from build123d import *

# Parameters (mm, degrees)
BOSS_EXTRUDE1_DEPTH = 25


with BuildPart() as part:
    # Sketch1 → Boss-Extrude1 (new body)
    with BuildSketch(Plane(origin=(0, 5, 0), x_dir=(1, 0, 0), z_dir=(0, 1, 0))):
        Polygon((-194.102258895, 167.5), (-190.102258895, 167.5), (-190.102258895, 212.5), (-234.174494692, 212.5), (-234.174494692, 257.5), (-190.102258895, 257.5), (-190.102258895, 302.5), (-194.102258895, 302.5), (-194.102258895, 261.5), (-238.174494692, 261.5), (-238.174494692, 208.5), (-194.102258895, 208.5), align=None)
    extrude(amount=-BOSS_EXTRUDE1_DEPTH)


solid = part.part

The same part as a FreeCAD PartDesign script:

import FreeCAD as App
import Part
import Sketcher

doc = App.newDocument("Part")
body = doc.addObject("PartDesign::Body", "Body")

# Sketch on XZ plane
sketch1 = doc.addObject("Sketcher::SketchObject", "Sketch")
body.addObject(sketch1)
sketch1.AttachmentSupport = (doc.XZ_Plane, [""])
sketch1.MapMode = "FlatFace"
sketch1.AttachmentOffset = App.Placement(App.Vector(0, 0, -5), App.Rotation())
sketch1.addGeometry([
    Part.LineSegment(App.Vector(-194.1, -167.5, 0), App.Vector(-190.1, -167.5, 0)),  # 0
    Part.LineSegment(App.Vector(-190.1, -167.5, 0), App.Vector(-190.1, -212.5, 0)),  # 1
    Part.LineSegment(App.Vector(-190.1, -212.5, 0), App.Vector(-234.2, -212.5, 0)),  # 2
    Part.LineSegment(App.Vector(-234.2, -212.5, 0), App.Vector(-234.2, -257.5, 0)),  # 3
    Part.LineSegment(App.Vector(-234.2, -257.5, 0), App.Vector(-190.1, -257.5, 0)),  # 4
    Part.LineSegment(App.Vector(-190.1, -257.5, 0), App.Vector(-190.1, -302.5, 0)),  # 5
    Part.LineSegment(App.Vector(-190.1, -302.5, 0), App.Vector(-194.1, -302.5, 0)),  # 6
    Part.LineSegment(App.Vector(-194.1, -302.5, 0), App.Vector(-194.1, -261.5, 0)),  # 7
    Part.LineSegment(App.Vector(-194.1, -261.5, 0), App.Vector(-238.2, -261.5, 0)),  # 8
    Part.LineSegment(App.Vector(-238.2, -261.5, 0), App.Vector(-238.2, -208.5, 0)),  # 9
    Part.LineSegment(App.Vector(-238.2, -208.5, 0), App.Vector(-194.1, -208.5, 0)),  # 10
    Part.LineSegment(App.Vector(-194.1, -208.5, 0), App.Vector(-194.1, -167.5, 0)),  # 11
], False)
sketch1.addConstraint([
    Sketcher.Constraint("Coincident", 0, 2, 1, 1),
    Sketcher.Constraint("Coincident", 1, 2, 2, 1),
    Sketcher.Constraint("Coincident", 2, 2, 3, 1),
    Sketcher.Constraint("Coincident", 3, 2, 4, 1),
    Sketcher.Constraint("Coincident", 4, 2, 5, 1),
    Sketcher.Constraint("Coincident", 5, 2, 6, 1),
    Sketcher.Constraint("Coincident", 6, 2, 7, 1),
    Sketcher.Constraint("Coincident", 7, 2, 8, 1),
    Sketcher.Constraint("Coincident", 8, 2, 9, 1),
    Sketcher.Constraint("Coincident", 9, 2, 10, 1),
    Sketcher.Constraint("Coincident", 10, 2, 11, 1),
    Sketcher.Constraint("Coincident", 11, 2, 0, 1),
    Sketcher.Constraint("Horizontal", 0),
    Sketcher.Constraint("Vertical", 1),
    Sketcher.Constraint("Horizontal", 2),
    Sketcher.Constraint("Vertical", 3),
    Sketcher.Constraint("Horizontal", 4),
    Sketcher.Constraint("Vertical", 5),
    Sketcher.Constraint("Horizontal", 6),
    Sketcher.Constraint("Vertical", 7),
    Sketcher.Constraint("Horizontal", 8),
    Sketcher.Constraint("Vertical", 9),
    Sketcher.Constraint("Horizontal", 10),
    Sketcher.Constraint("Vertical", 11),
    Sketcher.Constraint("Vertical", 1, 2, 4, 2),
    Sketcher.Constraint("Vertical", 7, 2, 10, 2),
    Sketcher.Constraint("Equal", 4, 8),
    Sketcher.Constraint("Equal", 1, 3),
    Sketcher.Constraint("Equal", 3, 5),
    Sketcher.Constraint("Equal", 7, 11),
    Sketcher.Constraint("DistanceX", 0, 1, 0, 2, 4.0),
    Sketcher.Constraint("DistanceY", 1, 2, 1, 1, 45.0),
    Sketcher.Constraint("DistanceY", 7, 1, 7, 2, 41.0),
    Sketcher.Constraint("DistanceY", 0, 2, -1, 1, 167.5),
    Sketcher.Constraint("DistanceX", 2, 2, 2, 1, 44.072236),
    Sketcher.Constraint("DistanceX", 0, 2, -1, 1, 190.102259),
])
pad1 = doc.addObject("PartDesign::Pad", "Pad")
body.addObject(pad1)
pad1.Profile = sketch1
pad1.Length = 25

doc.recompute()
